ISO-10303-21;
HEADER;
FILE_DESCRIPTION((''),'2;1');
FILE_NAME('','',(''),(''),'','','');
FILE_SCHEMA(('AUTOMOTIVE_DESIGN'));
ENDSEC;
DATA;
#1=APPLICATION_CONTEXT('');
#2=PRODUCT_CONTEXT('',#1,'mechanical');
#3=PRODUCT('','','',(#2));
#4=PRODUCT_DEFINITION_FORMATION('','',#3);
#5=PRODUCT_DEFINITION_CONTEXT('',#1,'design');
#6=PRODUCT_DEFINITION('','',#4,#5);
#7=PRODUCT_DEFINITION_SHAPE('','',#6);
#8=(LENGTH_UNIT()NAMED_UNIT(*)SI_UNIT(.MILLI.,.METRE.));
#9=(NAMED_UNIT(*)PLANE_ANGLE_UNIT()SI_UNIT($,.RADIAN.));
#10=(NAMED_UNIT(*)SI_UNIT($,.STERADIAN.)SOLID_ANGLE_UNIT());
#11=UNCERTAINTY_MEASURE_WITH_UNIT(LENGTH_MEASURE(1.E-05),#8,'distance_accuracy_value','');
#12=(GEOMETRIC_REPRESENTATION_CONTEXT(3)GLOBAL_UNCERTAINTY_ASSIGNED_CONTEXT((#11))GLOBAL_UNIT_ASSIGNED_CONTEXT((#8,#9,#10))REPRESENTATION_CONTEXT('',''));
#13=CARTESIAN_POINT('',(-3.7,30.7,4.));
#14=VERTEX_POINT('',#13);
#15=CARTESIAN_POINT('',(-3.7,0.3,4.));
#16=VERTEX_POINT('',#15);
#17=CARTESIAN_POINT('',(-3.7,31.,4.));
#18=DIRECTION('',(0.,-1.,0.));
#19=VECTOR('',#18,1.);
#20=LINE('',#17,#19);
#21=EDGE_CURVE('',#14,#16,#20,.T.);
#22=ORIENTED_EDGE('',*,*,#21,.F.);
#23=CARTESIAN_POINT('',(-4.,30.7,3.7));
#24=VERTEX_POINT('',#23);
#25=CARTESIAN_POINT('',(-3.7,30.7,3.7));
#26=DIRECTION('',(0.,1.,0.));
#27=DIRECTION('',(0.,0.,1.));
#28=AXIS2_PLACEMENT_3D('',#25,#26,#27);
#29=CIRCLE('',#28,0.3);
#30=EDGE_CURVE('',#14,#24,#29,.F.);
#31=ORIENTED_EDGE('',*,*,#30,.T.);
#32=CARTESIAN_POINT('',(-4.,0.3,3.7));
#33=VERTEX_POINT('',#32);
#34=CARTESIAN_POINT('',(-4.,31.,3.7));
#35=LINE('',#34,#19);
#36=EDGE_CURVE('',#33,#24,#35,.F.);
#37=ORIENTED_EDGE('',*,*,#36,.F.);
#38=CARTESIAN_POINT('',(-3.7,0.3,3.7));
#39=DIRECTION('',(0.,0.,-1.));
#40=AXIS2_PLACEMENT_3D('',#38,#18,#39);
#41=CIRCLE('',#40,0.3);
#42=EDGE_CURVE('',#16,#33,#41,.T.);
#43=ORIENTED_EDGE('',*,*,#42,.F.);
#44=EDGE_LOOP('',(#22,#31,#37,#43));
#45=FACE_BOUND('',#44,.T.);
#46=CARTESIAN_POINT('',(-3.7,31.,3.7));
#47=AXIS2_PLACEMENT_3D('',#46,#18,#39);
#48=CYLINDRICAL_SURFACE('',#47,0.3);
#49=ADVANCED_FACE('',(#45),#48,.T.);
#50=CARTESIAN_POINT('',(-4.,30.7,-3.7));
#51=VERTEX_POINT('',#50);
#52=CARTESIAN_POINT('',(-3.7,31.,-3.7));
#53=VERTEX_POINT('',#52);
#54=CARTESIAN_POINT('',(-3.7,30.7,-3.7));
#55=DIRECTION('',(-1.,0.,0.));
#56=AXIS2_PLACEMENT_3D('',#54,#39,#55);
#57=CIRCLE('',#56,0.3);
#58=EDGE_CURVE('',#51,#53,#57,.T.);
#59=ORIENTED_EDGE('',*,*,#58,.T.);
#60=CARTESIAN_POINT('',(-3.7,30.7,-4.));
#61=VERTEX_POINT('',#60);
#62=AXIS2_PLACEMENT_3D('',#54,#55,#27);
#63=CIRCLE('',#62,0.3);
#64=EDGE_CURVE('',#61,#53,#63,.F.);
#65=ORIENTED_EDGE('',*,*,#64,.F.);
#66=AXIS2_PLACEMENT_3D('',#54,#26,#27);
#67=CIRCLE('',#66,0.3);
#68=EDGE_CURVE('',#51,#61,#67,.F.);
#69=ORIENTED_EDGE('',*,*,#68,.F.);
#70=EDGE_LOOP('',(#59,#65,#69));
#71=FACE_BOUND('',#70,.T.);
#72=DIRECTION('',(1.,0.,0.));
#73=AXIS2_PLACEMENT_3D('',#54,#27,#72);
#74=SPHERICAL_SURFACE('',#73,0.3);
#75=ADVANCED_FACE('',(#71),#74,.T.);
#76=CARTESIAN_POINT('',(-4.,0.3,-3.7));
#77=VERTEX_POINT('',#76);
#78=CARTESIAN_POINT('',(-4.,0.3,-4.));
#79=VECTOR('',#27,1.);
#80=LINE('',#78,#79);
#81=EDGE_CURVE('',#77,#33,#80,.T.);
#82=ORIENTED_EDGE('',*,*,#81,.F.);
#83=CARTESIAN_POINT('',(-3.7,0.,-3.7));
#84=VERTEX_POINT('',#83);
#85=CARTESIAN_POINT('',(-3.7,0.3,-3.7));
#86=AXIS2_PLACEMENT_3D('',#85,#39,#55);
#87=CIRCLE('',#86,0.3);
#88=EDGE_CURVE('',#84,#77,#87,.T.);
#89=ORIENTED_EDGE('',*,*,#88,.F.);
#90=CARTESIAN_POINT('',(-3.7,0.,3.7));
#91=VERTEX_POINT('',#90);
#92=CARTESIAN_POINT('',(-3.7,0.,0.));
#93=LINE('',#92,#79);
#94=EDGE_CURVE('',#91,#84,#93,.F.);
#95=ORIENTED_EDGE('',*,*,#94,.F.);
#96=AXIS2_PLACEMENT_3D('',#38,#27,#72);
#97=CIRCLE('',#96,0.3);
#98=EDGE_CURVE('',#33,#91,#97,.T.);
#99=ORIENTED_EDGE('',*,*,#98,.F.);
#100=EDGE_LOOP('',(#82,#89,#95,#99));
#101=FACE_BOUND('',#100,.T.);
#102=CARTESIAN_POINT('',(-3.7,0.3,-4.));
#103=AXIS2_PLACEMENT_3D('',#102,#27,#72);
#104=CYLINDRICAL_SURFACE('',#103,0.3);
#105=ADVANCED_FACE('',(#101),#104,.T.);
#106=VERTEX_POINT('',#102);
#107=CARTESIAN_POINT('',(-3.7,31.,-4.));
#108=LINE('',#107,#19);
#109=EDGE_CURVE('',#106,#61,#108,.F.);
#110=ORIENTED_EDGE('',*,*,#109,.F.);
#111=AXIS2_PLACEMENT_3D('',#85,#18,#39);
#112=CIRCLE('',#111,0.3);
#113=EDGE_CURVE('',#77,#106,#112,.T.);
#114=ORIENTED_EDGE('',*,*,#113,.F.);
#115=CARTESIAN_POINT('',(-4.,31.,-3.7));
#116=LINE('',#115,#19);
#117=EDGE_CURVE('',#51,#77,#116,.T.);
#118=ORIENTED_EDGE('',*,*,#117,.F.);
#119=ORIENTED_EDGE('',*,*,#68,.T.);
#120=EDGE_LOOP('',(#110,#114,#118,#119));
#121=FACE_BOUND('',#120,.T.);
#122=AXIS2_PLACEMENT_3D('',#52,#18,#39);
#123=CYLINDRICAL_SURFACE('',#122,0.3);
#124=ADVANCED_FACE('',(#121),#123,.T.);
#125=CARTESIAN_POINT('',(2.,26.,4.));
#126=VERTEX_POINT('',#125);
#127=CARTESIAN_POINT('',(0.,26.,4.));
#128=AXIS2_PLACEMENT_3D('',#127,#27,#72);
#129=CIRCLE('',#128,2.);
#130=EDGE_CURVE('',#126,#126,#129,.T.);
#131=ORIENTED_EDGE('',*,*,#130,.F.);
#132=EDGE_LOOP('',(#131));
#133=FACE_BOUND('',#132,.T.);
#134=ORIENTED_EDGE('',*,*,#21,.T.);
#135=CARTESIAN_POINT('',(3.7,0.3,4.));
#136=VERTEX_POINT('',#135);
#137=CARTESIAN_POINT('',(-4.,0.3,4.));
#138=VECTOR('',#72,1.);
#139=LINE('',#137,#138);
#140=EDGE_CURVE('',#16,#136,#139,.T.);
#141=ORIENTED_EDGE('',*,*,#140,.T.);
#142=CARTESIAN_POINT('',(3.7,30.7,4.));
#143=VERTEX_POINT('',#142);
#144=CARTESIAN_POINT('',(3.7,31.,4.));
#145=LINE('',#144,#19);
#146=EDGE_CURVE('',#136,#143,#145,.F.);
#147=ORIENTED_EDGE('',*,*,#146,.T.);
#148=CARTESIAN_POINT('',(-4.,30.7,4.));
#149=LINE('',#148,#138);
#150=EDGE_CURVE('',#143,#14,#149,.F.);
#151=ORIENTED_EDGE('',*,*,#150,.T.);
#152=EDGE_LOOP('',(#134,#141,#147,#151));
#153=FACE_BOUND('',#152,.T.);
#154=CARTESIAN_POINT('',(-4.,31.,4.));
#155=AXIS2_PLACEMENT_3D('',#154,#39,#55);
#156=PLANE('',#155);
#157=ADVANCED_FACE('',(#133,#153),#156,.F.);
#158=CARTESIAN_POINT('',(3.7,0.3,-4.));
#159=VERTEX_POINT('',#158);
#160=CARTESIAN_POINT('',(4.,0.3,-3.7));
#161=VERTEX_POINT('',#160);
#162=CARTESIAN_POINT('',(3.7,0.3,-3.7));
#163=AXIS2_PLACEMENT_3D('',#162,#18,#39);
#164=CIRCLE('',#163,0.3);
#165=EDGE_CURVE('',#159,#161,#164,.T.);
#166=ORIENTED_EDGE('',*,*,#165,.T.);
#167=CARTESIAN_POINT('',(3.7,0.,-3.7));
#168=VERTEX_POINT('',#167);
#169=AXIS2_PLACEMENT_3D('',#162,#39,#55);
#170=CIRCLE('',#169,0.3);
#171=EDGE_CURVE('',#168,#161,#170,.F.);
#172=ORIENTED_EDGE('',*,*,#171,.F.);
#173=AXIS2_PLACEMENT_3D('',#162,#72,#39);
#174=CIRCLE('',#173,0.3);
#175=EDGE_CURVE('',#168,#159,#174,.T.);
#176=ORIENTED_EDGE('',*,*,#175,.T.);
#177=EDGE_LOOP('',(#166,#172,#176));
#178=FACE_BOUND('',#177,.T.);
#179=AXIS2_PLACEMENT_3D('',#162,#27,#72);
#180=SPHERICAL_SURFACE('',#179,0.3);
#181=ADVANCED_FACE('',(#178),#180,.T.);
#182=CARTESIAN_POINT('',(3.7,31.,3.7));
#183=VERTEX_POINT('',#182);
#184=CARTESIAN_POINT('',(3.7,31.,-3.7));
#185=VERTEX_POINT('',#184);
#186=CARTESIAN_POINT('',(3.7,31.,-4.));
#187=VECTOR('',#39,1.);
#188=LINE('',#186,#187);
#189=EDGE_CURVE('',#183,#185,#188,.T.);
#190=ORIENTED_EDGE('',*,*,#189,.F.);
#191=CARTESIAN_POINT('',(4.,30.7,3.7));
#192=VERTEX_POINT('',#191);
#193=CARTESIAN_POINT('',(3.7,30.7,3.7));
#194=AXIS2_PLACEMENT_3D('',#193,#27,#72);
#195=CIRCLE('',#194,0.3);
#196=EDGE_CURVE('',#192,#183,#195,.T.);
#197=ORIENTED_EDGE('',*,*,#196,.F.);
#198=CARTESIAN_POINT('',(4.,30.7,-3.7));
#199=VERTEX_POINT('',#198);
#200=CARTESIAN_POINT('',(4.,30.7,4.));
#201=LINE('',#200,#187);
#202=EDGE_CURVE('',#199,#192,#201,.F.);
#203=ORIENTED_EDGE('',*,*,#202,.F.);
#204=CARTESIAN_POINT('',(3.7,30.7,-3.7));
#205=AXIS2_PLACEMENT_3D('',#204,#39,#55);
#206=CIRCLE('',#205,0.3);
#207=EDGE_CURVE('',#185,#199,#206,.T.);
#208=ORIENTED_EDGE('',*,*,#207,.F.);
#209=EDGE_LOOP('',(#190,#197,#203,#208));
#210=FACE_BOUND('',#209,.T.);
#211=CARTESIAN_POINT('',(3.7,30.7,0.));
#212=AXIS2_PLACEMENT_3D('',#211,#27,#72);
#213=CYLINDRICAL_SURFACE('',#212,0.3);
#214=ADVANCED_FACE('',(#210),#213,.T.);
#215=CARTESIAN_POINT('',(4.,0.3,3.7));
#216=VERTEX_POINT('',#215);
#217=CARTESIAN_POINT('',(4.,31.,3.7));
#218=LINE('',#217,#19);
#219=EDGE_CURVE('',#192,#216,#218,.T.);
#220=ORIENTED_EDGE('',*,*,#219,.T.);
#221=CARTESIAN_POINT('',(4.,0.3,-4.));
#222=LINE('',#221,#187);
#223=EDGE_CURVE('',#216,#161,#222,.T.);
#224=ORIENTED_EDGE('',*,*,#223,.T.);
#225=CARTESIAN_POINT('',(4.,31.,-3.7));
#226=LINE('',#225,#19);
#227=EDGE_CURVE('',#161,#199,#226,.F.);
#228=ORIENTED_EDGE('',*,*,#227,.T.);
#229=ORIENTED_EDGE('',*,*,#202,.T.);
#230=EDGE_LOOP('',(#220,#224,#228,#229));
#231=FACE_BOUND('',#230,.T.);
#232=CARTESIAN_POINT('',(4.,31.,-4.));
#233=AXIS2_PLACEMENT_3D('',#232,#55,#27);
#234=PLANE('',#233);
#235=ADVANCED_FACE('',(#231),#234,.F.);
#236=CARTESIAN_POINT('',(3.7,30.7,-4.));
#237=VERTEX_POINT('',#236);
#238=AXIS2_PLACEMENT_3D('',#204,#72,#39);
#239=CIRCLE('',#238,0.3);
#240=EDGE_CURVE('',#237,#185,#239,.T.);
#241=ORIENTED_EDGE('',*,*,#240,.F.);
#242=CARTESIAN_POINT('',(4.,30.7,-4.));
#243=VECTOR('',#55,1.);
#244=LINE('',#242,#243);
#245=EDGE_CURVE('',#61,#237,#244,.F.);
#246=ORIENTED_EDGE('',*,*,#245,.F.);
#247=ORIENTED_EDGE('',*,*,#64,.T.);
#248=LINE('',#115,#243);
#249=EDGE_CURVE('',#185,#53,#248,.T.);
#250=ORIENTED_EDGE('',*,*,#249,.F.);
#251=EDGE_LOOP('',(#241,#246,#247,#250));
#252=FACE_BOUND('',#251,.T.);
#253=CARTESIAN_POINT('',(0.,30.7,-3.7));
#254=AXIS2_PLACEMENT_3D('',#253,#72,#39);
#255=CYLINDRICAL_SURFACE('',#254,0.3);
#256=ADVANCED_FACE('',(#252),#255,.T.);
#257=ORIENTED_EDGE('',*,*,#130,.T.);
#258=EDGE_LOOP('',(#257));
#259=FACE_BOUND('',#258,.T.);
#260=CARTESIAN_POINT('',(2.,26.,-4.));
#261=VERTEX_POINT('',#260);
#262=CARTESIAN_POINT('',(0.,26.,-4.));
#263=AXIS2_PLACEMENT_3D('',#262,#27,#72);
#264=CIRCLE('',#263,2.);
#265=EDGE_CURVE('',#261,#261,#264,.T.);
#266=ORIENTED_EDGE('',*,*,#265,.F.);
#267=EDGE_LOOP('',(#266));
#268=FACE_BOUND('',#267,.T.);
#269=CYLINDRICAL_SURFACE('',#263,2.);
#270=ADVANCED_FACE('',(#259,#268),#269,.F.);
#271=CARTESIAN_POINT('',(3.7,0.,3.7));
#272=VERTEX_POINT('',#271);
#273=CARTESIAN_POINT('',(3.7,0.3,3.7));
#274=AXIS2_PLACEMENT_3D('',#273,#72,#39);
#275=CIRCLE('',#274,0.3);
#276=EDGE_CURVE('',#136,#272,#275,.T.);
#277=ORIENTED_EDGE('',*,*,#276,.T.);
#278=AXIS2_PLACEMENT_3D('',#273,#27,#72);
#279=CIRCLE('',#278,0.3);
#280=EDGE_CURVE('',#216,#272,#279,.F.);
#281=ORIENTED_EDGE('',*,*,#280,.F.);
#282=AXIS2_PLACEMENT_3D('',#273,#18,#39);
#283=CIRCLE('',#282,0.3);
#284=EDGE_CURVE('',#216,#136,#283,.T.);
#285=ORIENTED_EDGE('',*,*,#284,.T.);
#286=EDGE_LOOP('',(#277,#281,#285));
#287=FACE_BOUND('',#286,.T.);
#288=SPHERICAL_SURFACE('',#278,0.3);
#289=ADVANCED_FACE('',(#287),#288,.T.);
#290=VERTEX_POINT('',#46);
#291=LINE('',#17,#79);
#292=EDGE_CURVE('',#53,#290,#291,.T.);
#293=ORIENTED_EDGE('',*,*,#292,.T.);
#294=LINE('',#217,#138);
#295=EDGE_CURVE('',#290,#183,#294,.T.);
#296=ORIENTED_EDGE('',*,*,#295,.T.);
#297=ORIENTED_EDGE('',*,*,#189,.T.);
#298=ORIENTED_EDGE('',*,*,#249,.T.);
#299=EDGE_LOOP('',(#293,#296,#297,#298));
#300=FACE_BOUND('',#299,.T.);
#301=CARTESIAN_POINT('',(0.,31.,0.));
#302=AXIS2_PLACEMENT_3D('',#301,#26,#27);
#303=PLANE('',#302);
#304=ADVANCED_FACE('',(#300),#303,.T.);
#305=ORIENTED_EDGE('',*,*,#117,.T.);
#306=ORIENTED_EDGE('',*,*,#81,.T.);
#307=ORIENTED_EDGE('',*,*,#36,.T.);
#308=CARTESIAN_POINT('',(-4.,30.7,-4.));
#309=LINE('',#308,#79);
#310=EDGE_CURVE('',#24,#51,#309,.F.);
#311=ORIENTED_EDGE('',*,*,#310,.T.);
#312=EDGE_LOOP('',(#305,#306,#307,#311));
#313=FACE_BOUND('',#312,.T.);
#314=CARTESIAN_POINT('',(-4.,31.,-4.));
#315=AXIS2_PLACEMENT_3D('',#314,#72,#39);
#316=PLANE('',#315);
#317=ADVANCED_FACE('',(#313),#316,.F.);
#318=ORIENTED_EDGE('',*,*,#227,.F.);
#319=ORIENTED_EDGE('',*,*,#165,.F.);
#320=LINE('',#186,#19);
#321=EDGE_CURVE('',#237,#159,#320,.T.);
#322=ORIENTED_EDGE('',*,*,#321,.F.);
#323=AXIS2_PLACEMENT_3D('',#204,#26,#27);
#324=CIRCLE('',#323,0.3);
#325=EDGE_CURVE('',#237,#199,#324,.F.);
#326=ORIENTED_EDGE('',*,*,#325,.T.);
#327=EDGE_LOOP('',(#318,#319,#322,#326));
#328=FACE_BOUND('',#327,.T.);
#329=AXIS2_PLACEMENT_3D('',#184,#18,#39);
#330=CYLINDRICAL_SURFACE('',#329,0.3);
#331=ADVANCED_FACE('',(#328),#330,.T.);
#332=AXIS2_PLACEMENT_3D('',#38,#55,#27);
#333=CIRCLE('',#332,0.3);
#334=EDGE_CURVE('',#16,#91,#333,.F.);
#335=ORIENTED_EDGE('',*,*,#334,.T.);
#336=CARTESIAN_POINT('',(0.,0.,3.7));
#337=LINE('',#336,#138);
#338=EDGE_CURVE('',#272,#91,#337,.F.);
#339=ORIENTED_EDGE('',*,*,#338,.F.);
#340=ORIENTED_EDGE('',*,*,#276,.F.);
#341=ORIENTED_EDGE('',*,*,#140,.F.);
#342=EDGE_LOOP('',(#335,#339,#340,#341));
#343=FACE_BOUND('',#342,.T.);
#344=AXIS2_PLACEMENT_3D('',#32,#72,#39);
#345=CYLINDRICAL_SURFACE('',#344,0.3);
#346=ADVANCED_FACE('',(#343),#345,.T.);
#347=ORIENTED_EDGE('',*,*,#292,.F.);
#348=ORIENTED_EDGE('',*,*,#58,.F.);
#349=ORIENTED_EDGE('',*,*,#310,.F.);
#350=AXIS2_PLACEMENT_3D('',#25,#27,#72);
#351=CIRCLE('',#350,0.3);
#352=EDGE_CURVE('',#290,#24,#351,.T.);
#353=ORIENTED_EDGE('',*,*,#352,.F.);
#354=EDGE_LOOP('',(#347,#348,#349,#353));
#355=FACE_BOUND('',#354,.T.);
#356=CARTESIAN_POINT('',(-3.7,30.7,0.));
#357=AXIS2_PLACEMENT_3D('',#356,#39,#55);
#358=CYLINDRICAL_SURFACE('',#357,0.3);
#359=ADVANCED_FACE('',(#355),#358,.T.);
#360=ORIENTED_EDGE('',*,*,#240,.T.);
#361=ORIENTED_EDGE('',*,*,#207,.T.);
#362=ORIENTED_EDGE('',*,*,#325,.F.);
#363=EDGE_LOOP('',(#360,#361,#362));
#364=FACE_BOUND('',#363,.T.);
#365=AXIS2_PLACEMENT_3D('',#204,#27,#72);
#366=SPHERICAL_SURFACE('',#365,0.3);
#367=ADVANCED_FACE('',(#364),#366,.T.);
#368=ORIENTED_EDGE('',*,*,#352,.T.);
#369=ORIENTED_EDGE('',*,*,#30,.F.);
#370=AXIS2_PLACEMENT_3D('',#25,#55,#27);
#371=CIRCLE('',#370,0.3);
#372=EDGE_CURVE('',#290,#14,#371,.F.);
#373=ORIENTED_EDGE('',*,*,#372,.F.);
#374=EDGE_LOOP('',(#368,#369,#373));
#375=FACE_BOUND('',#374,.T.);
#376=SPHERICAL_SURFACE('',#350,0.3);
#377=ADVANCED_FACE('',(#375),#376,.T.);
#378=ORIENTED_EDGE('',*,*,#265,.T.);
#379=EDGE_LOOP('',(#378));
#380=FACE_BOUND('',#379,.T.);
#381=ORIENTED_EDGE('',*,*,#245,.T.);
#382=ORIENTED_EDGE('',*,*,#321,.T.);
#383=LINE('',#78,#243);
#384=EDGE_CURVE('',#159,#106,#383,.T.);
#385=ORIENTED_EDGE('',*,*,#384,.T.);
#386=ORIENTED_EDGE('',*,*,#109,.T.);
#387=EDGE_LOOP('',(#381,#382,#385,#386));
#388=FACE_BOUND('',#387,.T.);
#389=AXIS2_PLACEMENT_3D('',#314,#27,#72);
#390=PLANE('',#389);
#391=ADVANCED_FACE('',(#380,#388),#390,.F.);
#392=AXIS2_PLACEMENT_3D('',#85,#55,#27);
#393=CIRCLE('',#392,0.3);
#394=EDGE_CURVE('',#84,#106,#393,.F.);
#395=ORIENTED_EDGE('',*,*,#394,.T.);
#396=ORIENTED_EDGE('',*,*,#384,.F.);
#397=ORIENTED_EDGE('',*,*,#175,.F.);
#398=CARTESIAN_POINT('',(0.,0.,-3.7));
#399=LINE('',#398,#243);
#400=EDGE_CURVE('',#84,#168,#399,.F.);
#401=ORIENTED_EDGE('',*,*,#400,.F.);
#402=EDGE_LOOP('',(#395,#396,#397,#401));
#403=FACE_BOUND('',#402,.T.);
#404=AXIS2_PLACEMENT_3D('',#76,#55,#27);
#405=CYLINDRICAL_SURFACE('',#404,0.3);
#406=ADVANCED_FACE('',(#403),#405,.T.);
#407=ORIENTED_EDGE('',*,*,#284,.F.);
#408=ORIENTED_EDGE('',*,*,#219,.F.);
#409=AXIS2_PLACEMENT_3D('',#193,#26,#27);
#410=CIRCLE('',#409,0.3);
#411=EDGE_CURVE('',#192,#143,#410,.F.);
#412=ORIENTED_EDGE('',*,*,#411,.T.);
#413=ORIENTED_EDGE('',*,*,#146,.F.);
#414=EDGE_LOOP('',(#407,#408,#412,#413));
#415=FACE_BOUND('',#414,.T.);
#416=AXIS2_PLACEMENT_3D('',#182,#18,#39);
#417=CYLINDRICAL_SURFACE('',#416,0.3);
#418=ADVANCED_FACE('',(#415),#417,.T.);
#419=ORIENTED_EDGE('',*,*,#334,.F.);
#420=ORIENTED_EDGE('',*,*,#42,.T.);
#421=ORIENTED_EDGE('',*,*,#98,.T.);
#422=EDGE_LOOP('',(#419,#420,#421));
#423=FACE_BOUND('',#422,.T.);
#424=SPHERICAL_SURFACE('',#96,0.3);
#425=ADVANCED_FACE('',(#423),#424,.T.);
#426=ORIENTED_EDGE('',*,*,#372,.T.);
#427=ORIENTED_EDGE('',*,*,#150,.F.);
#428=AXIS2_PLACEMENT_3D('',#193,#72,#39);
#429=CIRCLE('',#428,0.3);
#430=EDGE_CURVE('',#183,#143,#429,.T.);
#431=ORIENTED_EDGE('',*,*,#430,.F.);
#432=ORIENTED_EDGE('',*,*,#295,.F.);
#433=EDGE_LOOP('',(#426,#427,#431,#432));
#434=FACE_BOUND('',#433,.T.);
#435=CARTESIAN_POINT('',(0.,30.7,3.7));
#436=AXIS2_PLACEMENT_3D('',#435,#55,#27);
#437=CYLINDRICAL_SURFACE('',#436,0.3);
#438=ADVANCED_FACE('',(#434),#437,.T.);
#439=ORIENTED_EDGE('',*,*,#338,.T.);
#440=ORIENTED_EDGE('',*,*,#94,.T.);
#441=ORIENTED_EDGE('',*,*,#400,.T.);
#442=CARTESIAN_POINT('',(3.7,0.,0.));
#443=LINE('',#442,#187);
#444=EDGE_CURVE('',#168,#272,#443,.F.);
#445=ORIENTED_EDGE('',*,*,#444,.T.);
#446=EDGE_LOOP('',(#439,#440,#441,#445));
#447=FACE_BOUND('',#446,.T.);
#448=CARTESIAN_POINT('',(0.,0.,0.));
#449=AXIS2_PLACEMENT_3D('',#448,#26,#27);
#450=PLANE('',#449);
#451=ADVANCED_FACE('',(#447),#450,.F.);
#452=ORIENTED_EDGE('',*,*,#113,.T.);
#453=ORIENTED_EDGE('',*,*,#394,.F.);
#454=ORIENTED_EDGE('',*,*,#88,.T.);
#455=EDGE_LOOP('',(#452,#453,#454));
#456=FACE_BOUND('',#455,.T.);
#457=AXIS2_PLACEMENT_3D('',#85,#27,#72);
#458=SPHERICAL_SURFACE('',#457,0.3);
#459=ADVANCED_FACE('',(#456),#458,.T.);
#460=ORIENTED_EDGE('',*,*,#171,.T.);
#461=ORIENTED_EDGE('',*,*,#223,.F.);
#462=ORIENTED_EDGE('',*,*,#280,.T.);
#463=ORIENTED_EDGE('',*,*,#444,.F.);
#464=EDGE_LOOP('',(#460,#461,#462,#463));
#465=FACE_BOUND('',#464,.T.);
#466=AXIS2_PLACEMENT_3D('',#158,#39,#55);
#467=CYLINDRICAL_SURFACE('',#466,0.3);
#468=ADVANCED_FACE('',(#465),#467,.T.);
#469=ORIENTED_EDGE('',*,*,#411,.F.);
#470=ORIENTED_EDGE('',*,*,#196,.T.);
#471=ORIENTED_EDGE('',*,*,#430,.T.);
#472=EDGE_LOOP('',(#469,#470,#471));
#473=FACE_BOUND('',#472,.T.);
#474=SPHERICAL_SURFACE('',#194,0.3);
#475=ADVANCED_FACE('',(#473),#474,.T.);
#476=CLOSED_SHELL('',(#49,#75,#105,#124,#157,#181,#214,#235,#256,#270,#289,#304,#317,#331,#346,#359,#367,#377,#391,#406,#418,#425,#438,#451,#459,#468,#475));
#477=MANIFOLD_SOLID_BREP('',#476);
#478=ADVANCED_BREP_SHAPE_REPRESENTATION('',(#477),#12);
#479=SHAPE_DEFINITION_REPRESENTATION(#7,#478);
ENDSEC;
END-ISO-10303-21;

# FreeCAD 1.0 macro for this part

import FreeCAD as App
import Part
import Sketcher
from FreeCAD import Vector

doc = App.newDocument("Part")
body = doc.addObject("PartDesign::Body", "Body")

sketch1 = body.newObject("Sketcher::SketchObject", "Sketch")
sketch1.AttachmentSupport = (doc.getObject("XZ_Plane"), [""])
sketch1.MapMode = "FlatFace"
sketch1.addGeometry(Part.LineSegment(Vector(-4, -4, 0), Vector(-4, 4, 0)), False)
sketch1.addGeometry(Part.LineSegment(Vector(-4, 4, 0), Vector(4, 4, 0)), False)
sketch1.addGeometry(Part.LineSegment(Vector(4, 4, 0), Vector(4, -4, 0)), False)
sketch1.addGeometry(Part.LineSegment(Vector(4, -4, 0), Vector(-4, -4, 0)), False)
sketch1.addConstraint(Sketcher.Constraint("Coincident", 0, 2, 1, 1))
sketch1.addConstraint(Sketcher.Constraint("Coincident", 1, 2, 2, 1))
sketch1.addConstraint(Sketcher.Constraint("Coincident", 2, 2, 3, 1))
sketch1.addConstraint(Sketcher.Constraint("Coincident", 3, 2, 0, 1))
sketch1.addConstraint(Sketcher.Constraint("Vertical", 0))
sketch1.addConstraint(Sketcher.Constraint("Horizontal", 1))
sketch1.addConstraint(Sketcher.Constraint("Vertical", 2))
sketch1.addConstraint(Sketcher.Constraint("Horizontal", 3))
sketch1.addConstraint(Sketcher.Constraint("Symmetric", 0, 2, 2, 2, -1, 1))
sketch1.addConstraint(Sketcher.Constraint("Equal", 3, 0))
sketch1.addConstraint(Sketcher.Constraint("DistanceX", 1, 1, 1, 2, 8.0))
pad1 = body.newObject("PartDesign::Pad", "Pad")
pad1.Profile = sketch1
pad1.Length = 31
pad1.Reversed = True
doc.recompute()

fillet = body.newObject("PartDesign::Fillet", "Fillet")
fillet.Base = (pad1, ["Edge1"])
fillet.UseAllEdges = True
fillet.Radius = 0.3

sketch2 = body.newObject("Sketcher::SketchObject", "Sketch001")
sketch2.AttachmentSupport = (doc.getObject("XY_Plane"), [""])
sketch2.MapMode = "FlatFace"
sketch2.AttachmentOffset = App.Placement(Vector(0, 0, 4), App.Rotation())
sketch2.addGeometry(Part.Circle(Vector(0, 26, 0), Vector(0, 0, 1), 2), False)
sketch2.addConstraint(Sketcher.Constraint("PointOnObject", 0, 3, -2))
sketch2.addConstraint(Sketcher.Constraint("Diameter", 0, 4.0))
sketch2.addConstraint(Sketcher.Constraint("DistanceY", -1, 1, 0, 3, 26.0))
pocket1 = body.newObject("PartDesign::Pocket", "Pocket")
pocket1.Profile = sketch2
pocket1.Type = "ThroughAll"

doc.recompute()
